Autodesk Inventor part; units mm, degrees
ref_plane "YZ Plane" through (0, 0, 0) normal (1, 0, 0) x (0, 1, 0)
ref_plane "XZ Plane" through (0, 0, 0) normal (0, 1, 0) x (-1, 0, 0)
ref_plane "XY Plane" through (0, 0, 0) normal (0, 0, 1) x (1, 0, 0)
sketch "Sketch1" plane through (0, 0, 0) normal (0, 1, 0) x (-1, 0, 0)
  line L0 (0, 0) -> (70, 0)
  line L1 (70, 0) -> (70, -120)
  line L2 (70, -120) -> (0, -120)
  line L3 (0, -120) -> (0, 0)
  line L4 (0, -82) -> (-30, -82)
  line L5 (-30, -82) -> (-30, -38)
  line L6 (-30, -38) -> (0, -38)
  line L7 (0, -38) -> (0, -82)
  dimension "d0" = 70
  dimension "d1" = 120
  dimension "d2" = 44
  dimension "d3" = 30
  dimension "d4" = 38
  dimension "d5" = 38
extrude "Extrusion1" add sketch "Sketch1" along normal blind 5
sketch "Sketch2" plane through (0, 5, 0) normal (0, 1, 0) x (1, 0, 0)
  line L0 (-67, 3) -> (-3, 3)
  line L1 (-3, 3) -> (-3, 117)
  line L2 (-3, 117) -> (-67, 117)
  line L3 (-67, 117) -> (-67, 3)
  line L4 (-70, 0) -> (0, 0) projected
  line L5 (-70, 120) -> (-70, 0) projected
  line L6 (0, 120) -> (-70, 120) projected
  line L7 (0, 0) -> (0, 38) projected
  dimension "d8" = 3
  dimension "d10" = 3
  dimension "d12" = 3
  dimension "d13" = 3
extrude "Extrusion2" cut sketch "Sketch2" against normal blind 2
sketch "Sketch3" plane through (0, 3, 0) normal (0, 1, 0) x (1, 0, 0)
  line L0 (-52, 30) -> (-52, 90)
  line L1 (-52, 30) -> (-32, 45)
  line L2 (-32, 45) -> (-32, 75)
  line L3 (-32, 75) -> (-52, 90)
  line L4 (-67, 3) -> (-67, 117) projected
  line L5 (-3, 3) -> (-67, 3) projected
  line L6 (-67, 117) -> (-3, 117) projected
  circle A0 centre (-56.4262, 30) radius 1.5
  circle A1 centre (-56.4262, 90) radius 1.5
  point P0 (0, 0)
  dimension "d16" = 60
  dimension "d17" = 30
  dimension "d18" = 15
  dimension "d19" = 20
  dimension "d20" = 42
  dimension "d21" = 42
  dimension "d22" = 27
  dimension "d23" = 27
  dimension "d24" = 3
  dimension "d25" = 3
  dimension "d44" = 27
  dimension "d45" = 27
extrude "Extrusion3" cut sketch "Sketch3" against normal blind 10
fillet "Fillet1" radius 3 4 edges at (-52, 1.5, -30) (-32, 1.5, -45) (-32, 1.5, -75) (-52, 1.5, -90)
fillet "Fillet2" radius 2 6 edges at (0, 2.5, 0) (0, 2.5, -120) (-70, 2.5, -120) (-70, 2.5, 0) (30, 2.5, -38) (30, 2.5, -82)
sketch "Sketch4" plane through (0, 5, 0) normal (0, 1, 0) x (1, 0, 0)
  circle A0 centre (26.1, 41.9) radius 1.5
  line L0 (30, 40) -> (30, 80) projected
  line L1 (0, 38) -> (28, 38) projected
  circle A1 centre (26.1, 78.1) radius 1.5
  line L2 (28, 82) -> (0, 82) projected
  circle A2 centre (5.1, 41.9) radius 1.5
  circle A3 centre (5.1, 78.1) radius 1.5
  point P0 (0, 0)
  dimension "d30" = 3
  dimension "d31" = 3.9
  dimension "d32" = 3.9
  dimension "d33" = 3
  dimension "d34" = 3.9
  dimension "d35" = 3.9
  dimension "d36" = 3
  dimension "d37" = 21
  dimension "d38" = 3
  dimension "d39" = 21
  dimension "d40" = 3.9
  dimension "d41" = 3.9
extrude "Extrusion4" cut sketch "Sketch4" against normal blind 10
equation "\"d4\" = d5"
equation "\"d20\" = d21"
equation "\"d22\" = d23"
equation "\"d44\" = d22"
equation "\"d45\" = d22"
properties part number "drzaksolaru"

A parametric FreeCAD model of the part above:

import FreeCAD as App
import Part
import Sketcher
Q = App.Units.Quantity


def edges_at(feature, points):
    """Names of the edges that pass closest to the given points."""
    edges = feature.Shape.Edges
    near = lambda p: min(range(len(edges)), key=lambda i: edges[i].distToShape(Part.Vertex(*p))[0])
    return sorted({f"Edge{near(p) + 1}" for p in points})


def add_polygon(sketch, points):
    """Adds a closed chain of lines whose ends are joined by coincident constraints."""
    first, n = sketch.GeometryCount, len(points)
    for a, b in zip(points, points[1:] + points[:1]):
        sketch.addGeometry(Part.LineSegment(App.Vector(*a, 0), App.Vector(*b, 0)), False)
    for i in range(n):
        sketch.addConstraint(Sketcher.Constraint("Coincident", first + i, 2, first + (i + 1) % n, 1))

doc = App.newDocument("Part")
body = doc.addObject("PartDesign::Body", "Body")

sketch1 = body.newObject("Sketcher::SketchObject", "Sketch")
sketch1.AttachmentSupport = (doc.getObject("XZ_Plane"), [""])
sketch1.MapMode = "FlatFace"
add_polygon(sketch1, [(-70, 0), (0, 0), (0, -38), (30, -38), (30, -82), (0, -82), (0, -120), (-70, -120)])
sketch1.addConstraint([
    Sketcher.Constraint("Horizontal", 0),
    Sketcher.Constraint("Vertical", 1),
    Sketcher.Constraint("Horizontal", 2),
    Sketcher.Constraint("Vertical", 3),
    Sketcher.Constraint("Horizontal", 4),
    Sketcher.Constraint("Vertical", 5),
    Sketcher.Constraint("Horizontal", 6),
    Sketcher.Constraint("Vertical", 7),
    Sketcher.Constraint("Coincident", 0, 2, -1, 1),
    Sketcher.Constraint("PointOnObject", 4, 2, -2),
    Sketcher.Constraint("Equal", 1, 5),
    Sketcher.Constraint("DistanceX", 0, 1, 0, 2, Q("70 mm")),
    Sketcher.Constraint("DistanceX", 2, 1, 2, 2, Q("30 mm")),
    Sketcher.Constraint("DistanceY", 1, 2, 1, 1, Q("38 mm")),
    Sketcher.Constraint("DistanceY", 3, 2, 3, 1, Q("44 mm")),
])
pad1 = body.newObject("PartDesign::Pad", "Pad")
pad1.Profile = sketch1
pad1.Length = 5
pad1.Reversed = True

sketch2 = body.newObject("Sketcher::SketchObject", "Sketch001")
sketch2.AttachmentSupport = (doc.getObject("XZ_Plane"), [""])
sketch2.MapMode = "FlatFace"
sketch2.AttachmentOffset = App.Placement(App.Vector(0, 0, -5), App.Rotation())
add_polygon(sketch2, [(-67, -117), (-67, -3), (-3, -3), (-3, -117)])
sketch2.addConstraint([
    Sketcher.Constraint("Vertical", 0),
    Sketcher.Constraint("Horizontal", 1),
    Sketcher.Constraint("Vertical", 2),
    Sketcher.Constraint("Horizontal", 3),
    Sketcher.Constraint("DistanceY", 0, 2, -1, 1, Q("3 mm")),
    Sketcher.Constraint("DistanceX", 1, 2, -1, 1, Q("3 mm")),
    Sketcher.Constraint("DistanceX", 1, 1, 1, 2, Q("64 mm")),
    Sketcher.Constraint("DistanceY", 0, 1, 0, 2, Q("114 mm")),
])
pocket1 = body.newObject("PartDesign::Pocket", "Pocket")
pocket1.Profile = sketch2
pocket1.Length = 2
pocket1.Reversed = True

sketch3 = body.newObject("Sketcher::SketchObject", "Sketch002")
sketch3.AttachmentSupport = (doc.getObject("XZ_Plane"), [""])
sketch3.MapMode = "FlatFace"
sketch3.AttachmentOffset = App.Placement(App.Vector(0, 0, -3), App.Rotation())
add_polygon(sketch3, [(-52, -90), (-52, -30), (-32, -45), (-32, -75)])
sketch3.addGeometry(Part.Circle(App.Vector(-56.4, -30, 0), App.Vector(0, 0, 1), 1.5), False)
sketch3.addGeometry(Part.Circle(App.Vector(-56.4, -90, 0), App.Vector(0, 0, 1), 1.5), False)
sketch3.addConstraint([
    Sketcher.Constraint("Vertical", 0),
    Sketcher.Constraint("Vertical", 2),
    Sketcher.Constraint("Equal", 4, 5),
    Sketcher.Constraint("Horizontal", 4, 3, 0, 2),
    Sketcher.Constraint("Horizontal", 5, 3, 3, 2),
    Sketcher.Constraint("Vertical", 4, 3, 5, 3),
    Sketcher.Constraint("Equal", 1, 3),
    Sketcher.Constraint("Diameter", 4, Q("3 mm")),
    Sketcher.Constraint("DistanceY", 0, 1, 0, 2, Q("60 mm")),
    Sketcher.Constraint("DistanceY", 2, 2, 2, 1, Q("30 mm")),
    Sketcher.Constraint("DistanceY", 4, 3, -1, 1, Q("30 mm")),
    Sketcher.Constraint("DistanceX", 0, 2, 1, 2, Q("20 mm")),
    Sketcher.Constraint("DistanceX", 0, 2, -1, 1, Q("52 mm")),
    Sketcher.Constraint("DistanceX", 4, 3, -1, 1, Q("56.4262 mm")),
])
pocket2 = body.newObject("PartDesign::Pocket", "Pocket001")
pocket2.Profile = sketch3
pocket2.Length = 10
pocket2.Reversed = True
doc.recompute()

fillet = body.newObject("PartDesign::Fillet", "Fillet")
fillet.Base = (pocket2, edges_at(pocket2, [
    (-52, 1.5, -30),
    (-32, 1.5, -45),
    (-32, 1.5, -75),
    (-52, 1.5, -90),
]))
fillet.Radius = 3
doc.recompute()

fillet2 = body.newObject("PartDesign::Fillet", "Fillet001")
fillet2.Base = (fillet, edges_at(fillet, [
    (0, 2.5, 0),
    (0, 2.5, -120),
    (-70, 2.5, -120),
    (-70, 2.5, 0),
    (30, 2.5, -38),
    (30, 2.5, -82),
]))
fillet2.Radius = 2

sketch4 = body.newObject("Sketcher::SketchObject", "Sketch003")
sketch4.AttachmentSupport = (doc.getObject("XZ_Plane"), [""])
sketch4.MapMode = "FlatFace"
sketch4.AttachmentOffset = App.Placement(App.Vector(0, 0, -5), App.Rotation())
sketch4.addGeometry([
    Part.Circle(App.Vector(26.1, -41.9, 0), App.Vector(0, 0, 1), 1.5),
    Part.Circle(App.Vector(26.1, -78.1, 0), App.Vector(0, 0, 1), 1.5),
    Part.Circle(App.Vector(5.1, -41.9, 0), App.Vector(0, 0, 1), 1.5),
    Part.Circle(App.Vector(5.1, -78.1, 0), App.Vector(0, 0, 1), 1.5),
], False)
sketch4.addConstraint([
    Sketcher.Constraint("Equal", 0, 1),
    Sketcher.Constraint("Equal", 1, 2),
    Sketcher.Constraint("Equal", 2, 3),
    Sketcher.Constraint("Horizontal", 0, 3, 2, 3),
    Sketcher.Constraint("Horizontal", 1, 3, 3, 3),
    Sketcher.Constraint("Vertical", 0, 3, 1, 3),
    Sketcher.Constraint("Vertical", 2, 3, 3, 3),
    Sketcher.Constraint("Diameter", 0, Q("3 mm")),
    Sketcher.Constraint("DistanceX", 2, 3, 0, 3, Q("21 mm")),
    Sketcher.Constraint("DistanceX", -1, 1, 0, 3, Q("26.1 mm")),
    Sketcher.Constraint("DistanceY", 0, 3, -1, 1, Q("41.9 mm")),
    Sketcher.Constraint("DistanceY", 1, 3, -1, 1, Q("78.1 mm")),
])
pocket3 = body.newObject("PartDesign::Pocket", "Pocket002")
pocket3.Profile = sketch4
pocket3.Length = 10
pocket3.Reversed = True

doc.recompute()
